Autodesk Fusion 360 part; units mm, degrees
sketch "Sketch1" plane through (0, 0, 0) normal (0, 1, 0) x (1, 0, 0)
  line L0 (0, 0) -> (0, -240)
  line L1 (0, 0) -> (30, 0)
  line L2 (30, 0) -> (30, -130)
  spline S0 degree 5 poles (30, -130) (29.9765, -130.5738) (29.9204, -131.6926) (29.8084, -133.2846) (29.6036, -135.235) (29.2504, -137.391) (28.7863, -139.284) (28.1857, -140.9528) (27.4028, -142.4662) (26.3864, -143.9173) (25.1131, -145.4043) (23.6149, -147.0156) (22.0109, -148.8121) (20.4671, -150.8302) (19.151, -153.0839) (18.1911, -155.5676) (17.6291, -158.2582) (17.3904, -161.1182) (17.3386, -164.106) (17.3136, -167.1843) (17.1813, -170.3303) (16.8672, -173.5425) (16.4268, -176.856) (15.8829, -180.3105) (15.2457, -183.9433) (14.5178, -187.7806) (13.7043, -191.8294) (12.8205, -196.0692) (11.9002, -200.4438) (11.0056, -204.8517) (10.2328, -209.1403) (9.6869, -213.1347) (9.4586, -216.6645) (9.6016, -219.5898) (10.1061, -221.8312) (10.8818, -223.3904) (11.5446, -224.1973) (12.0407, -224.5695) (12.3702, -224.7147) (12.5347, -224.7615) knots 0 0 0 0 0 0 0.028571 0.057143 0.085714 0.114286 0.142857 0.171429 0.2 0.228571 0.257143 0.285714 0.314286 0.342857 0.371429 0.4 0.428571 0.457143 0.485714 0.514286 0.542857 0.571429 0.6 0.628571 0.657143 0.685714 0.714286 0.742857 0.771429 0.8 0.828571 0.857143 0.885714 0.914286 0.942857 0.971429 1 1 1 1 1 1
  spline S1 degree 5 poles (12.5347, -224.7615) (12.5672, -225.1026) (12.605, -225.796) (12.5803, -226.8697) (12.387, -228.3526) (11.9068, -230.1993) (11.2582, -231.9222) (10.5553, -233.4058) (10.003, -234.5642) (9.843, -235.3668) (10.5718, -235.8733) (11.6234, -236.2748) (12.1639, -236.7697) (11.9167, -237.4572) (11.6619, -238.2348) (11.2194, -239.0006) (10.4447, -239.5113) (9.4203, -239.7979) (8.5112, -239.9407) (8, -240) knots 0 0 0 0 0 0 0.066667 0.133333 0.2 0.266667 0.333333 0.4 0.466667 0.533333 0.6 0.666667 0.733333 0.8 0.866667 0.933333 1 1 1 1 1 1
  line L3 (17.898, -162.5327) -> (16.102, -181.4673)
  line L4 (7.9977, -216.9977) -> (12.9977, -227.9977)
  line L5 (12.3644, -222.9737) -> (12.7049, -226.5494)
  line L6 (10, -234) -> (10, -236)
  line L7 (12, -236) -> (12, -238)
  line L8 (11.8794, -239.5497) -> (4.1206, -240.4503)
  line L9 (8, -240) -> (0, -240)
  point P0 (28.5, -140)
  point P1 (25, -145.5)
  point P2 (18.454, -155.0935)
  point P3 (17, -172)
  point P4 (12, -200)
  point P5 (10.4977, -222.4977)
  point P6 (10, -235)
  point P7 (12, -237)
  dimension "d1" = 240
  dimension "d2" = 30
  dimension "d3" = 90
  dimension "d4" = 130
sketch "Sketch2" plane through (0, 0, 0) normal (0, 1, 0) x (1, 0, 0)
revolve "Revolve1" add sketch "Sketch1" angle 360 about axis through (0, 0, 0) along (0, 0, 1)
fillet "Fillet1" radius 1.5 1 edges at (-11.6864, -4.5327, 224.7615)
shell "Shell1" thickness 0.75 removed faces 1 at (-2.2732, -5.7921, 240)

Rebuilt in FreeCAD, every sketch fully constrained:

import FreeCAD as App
import Part
import Sketcher

V = App.Vector


def edges_at(feature, points):
    """Names of the edges that pass closest to the given points."""
    edges = feature.Shape.Edges
    near = lambda p: min(range(len(edges)), key=lambda i: edges[i].distToShape(Part.Vertex(*p))[0])
    return sorted({f"Edge{near(p) + 1}" for p in points})


def faces_at(feature, points):
    """Names of the faces that lie closest to the given points."""
    faces = feature.Shape.Faces
    near = lambda p: min(range(len(faces)), key=lambda i: faces[i].distToShape(Part.Vertex(*p))[0])
    return sorted({f"Face{near(p) + 1}" for p in points})

doc = App.newDocument("Part")
body = doc.addObject("PartDesign::Body", "Body")

sketch1 = doc.addObject("Sketcher::SketchObject", "Sketch")
body.addObject(sketch1)
sketch1.AttachmentSupport = (doc.XZ_Plane, [""])
sketch1.MapMode = "FlatFace"
sketch1.addGeometry(Part.LineSegment(V(30, 0, 0), V(0, 0, 0)), False)
sketch1.addGeometry(Part.LineSegment(V(0, 0, 0), V(0, 240, 0)), False)
sketch1.addGeometry(Part.LineSegment(V(0, 240, 0), V(8, 240, 0)), False)
sketch1.addGeometry(Part.BSplineCurve([V(11.999997, 237.000004, 0), V(11.999997, 237.089396, 0), V(11.970313, 237.315293, 0), V(11.834415, 237.705702, 0), V(11.635429, 238.280611, 0), V(11.2194, 239.0006, 0), V(10.4447, 239.5113, 0), V(9.4203, 239.7979, 0), V(8.5112, 239.9407, 0), V(8, 240, 0)], [6, 1, 1, 1, 1, 6], [0.686607385, 0.733333, 0.8, 0.866667, 0.933333, 1], False, 5, [1, 1, 1, 1, 1, 1, 1, 1, 1, 1], False), False)
sketch1.addGeometry(Part.BSplineCurve([V(10.000019, 234.999976, 0), V(10.000019, 235.06375, 0), V(10.018659, 235.27559, 0), V(10.167597, 235.586579, 0), V(10.696716, 235.920993, 0), V(11.47599, 236.218519, 0), V(11.891714, 236.534266, 0), V(11.990322, 236.799086, 0), V(11.999997, 236.961855, 0), V(11.999997, 237.000004, 0)], [6, 1, 1, 1, 1, 6], [0.439595632, 0.466667, 0.533333, 0.6, 0.666667, 0.686607385], False, 5, [1, 1, 1, 1, 1, 1, 1, 1, 1, 1], False), False)
sketch1.addGeometry(Part.BSplineCurve([V(12.528025, 226.964415, 0), V(12.502277, 227.239533, 0), V(12.425298, 227.882973, 0), V(12.243389, 228.902567, 0), V(11.875015, 230.283731, 0), V(11.2582, 231.9222, 0), V(10.612385, 233.285311, 0), V(10.20441, 234.141684, 0), V(10.030926, 234.641467, 0), V(10.000019, 234.906697, 0), V(10.000019, 234.999976, 0)], [6, 1, 1, 1, 1, 1, 6], [0.083002066, 0.133333, 0.2, 0.266667, 0.333333, 0.4, 0.439595632], False, 5, [1, 1, 1, 1, 1, 1, 1, 1, 1, 1, 1], False), False)
sketch1.addGeometry(Part.BSplineCurve([V(12.5347, 224.7615, 0), V(12.5672, 225.1026, 0), V(12.590731, 225.534253, 0), V(12.593232, 225.974587, 0), V(12.5749, 226.422321, 0), V(12.536382, 226.875125, 0), V(12.528025, 226.964415, 0)], [6, 1, 6], [0, 0.066667, 0.083002066], False, 5, [1, 1, 1, 1, 1, 1, 1], False), False)
sketch1.addGeometry(Part.BSplineCurve([V(10.497769, 222.497841, 0), V(10.573772, 222.665047, 0), V(10.801863, 223.12766, 0), V(11.205702, 223.778852, 0), V(11.623554, 224.256535, 0), V(12.0407, 224.5695, 0), V(12.3702, 224.7147, 0), V(12.5347, 224.7615, 0)], [6, 1, 1, 6], [0.927927261, 0.942857, 0.971429, 1], False, 5, [1, 1, 1, 1, 1, 1, 1, 1], False), False)
sketch1.addGeometry(Part.BSplineCurve([V(16.999914, 172.000908, 0), V(16.970389, 172.312181, 0), V(16.874335, 173.270688, 0), V(16.686702, 174.892025, 0), V(16.370586, 177.213037, 0), V(15.8829, 180.3105, 0), V(15.2457, 183.9433, 0), V(14.5178, 187.7806, 0), V(13.7043, 191.8294, 0), V(12.8205, 196.0692, 0), V(11.9002, 200.4438, 0), V(11.0056, 204.8517, 0), V(10.2328, 209.1403, 0), V(9.6869, 213.1347, 0), V(9.4586, 216.6645, 0), V(9.586655, 219.284082, 0), V(9.904686, 220.90509, 0), V(10.219315, 221.850497, 0), V(10.428326, 222.345065, 0), V(10.497769, 222.497841, 0)], [6, 1, 1, 1, 1, 1, 1, 1, 1, 1, 1, 1, 1, 1, 1, 6], [0.529050868, 0.542857, 0.571429, 0.6, 0.628571, 0.657143, 0.685714, 0.714286, 0.742857, 0.771429, 0.8, 0.828571, 0.857143, 0.885714, 0.914286, 0.927927261], False, 5, [1, 1, 1, 1, 1, 1, 1, 1, 1, 1, 1, 1, 1, 1, 1, 1, 1, 1, 1, 1], False), False)
sketch1.addGeometry(Part.BSplineCurve([V(30, 130, 0), V(29.9765, 130.5738, 0), V(29.9204, 131.6926, 0), V(29.8084, 133.2846, 0), V(29.6036, 135.235, 0), V(29.2504, 137.391, 0), V(28.7863, 139.284, 0), V(28.1857, 140.9528, 0), V(27.4028, 142.4662, 0), V(26.3864, 143.9173, 0), V(25.1131, 145.4043, 0), V(23.6149, 147.0156, 0), V(22.0109, 148.8121, 0), V(20.4671, 150.8302, 0), V(19.151, 153.0839, 0), V(18.1911, 155.5676, 0), V(17.6291, 158.2582, 0), V(17.3904, 161.1182, 0), V(17.3386, 164.106, 0), V(17.316016, 166.886804, 0), V(17.232079, 169.093808, 0), V(17.118233, 170.694285, 0), V(17.03149, 171.66802, 0), V(16.999914, 172.000908, 0)], [6, 1, 1, 1, 1, 1, 1, 1, 1, 1, 1, 1, 1, 1, 1, 1, 1, 1, 1, 6], [0, 0.028571, 0.057143, 0.085714, 0.114286, 0.142857, 0.171429, 0.2, 0.228571, 0.257143, 0.285714, 0.314286, 0.342857, 0.371429, 0.4, 0.428571, 0.457143, 0.485714, 0.514286, 0.529050868], False, 5, [1, 1, 1, 1, 1, 1, 1, 1, 1, 1, 1, 1, 1, 1, 1, 1, 1, 1, 1, 1, 1, 1, 1, 1], False), False)
sketch1.addGeometry(Part.LineSegment(V(30, 130, 0), V(30, 0, 0)), False)
sketch1.addConstraint(Sketcher.Constraint("Block", 3))
sketch1.addConstraint(Sketcher.Constraint("Block", 4))
sketch1.addConstraint(Sketcher.Constraint("Block", 5))
sketch1.addConstraint(Sketcher.Constraint("Block", 6))
sketch1.addConstraint(Sketcher.Constraint("Block", 7))
sketch1.addConstraint(Sketcher.Constraint("Block", 8))
sketch1.addConstraint(Sketcher.Constraint("Block", 9))
sketch1.addConstraint(Sketcher.Constraint("Coincident", 0, 2, 1, 1))
sketch1.addConstraint(Sketcher.Constraint("Coincident", 1, 2, 2, 1))
sketch1.addConstraint(Sketcher.Constraint("Coincident", 2, 2, 3, 2))
sketch1.addConstraint(Sketcher.Constraint("Coincident", 9, 1, 10, 1))
sketch1.addConstraint(Sketcher.Constraint("Coincident", 10, 2, 0, 1))
sketch1.addConstraint(Sketcher.Constraint("Horizontal", 0))
sketch1.addConstraint(Sketcher.Constraint("Vertical", 1))
sketch1.addConstraint(Sketcher.Constraint("Horizontal", 2))
sketch1.addConstraint(Sketcher.Constraint("Vertical", 10))
sketch1.addConstraint(Sketcher.Constraint("Coincident", 0, 2, -1, 1))
revolution = doc.addObject("PartDesign::Revolution", "Revolution")
body.addObject(revolution)
revolution.Profile = sketch1
revolution.ReferenceAxis = (sketch1, ["V_Axis"])
revolution.Angle = 360
doc.recompute()

fillet = doc.addObject("PartDesign::Fillet", "Fillet")
body.addObject(fillet)
fillet.Base = (revolution, edges_at(revolution, [(-11.686, -4.533, 224.762)]))
fillet.Radius = 1.5
doc.recompute()

thickness = doc.addObject("PartDesign::Thickness", "Thickness")
body.addObject(thickness)
thickness.Base = (fillet, faces_at(fillet, [(-2.273, -5.792, 240)]))
thickness.Value = 0.75
thickness.Reversed = True
thickness.Join = "Intersection"

doc.recompute()
